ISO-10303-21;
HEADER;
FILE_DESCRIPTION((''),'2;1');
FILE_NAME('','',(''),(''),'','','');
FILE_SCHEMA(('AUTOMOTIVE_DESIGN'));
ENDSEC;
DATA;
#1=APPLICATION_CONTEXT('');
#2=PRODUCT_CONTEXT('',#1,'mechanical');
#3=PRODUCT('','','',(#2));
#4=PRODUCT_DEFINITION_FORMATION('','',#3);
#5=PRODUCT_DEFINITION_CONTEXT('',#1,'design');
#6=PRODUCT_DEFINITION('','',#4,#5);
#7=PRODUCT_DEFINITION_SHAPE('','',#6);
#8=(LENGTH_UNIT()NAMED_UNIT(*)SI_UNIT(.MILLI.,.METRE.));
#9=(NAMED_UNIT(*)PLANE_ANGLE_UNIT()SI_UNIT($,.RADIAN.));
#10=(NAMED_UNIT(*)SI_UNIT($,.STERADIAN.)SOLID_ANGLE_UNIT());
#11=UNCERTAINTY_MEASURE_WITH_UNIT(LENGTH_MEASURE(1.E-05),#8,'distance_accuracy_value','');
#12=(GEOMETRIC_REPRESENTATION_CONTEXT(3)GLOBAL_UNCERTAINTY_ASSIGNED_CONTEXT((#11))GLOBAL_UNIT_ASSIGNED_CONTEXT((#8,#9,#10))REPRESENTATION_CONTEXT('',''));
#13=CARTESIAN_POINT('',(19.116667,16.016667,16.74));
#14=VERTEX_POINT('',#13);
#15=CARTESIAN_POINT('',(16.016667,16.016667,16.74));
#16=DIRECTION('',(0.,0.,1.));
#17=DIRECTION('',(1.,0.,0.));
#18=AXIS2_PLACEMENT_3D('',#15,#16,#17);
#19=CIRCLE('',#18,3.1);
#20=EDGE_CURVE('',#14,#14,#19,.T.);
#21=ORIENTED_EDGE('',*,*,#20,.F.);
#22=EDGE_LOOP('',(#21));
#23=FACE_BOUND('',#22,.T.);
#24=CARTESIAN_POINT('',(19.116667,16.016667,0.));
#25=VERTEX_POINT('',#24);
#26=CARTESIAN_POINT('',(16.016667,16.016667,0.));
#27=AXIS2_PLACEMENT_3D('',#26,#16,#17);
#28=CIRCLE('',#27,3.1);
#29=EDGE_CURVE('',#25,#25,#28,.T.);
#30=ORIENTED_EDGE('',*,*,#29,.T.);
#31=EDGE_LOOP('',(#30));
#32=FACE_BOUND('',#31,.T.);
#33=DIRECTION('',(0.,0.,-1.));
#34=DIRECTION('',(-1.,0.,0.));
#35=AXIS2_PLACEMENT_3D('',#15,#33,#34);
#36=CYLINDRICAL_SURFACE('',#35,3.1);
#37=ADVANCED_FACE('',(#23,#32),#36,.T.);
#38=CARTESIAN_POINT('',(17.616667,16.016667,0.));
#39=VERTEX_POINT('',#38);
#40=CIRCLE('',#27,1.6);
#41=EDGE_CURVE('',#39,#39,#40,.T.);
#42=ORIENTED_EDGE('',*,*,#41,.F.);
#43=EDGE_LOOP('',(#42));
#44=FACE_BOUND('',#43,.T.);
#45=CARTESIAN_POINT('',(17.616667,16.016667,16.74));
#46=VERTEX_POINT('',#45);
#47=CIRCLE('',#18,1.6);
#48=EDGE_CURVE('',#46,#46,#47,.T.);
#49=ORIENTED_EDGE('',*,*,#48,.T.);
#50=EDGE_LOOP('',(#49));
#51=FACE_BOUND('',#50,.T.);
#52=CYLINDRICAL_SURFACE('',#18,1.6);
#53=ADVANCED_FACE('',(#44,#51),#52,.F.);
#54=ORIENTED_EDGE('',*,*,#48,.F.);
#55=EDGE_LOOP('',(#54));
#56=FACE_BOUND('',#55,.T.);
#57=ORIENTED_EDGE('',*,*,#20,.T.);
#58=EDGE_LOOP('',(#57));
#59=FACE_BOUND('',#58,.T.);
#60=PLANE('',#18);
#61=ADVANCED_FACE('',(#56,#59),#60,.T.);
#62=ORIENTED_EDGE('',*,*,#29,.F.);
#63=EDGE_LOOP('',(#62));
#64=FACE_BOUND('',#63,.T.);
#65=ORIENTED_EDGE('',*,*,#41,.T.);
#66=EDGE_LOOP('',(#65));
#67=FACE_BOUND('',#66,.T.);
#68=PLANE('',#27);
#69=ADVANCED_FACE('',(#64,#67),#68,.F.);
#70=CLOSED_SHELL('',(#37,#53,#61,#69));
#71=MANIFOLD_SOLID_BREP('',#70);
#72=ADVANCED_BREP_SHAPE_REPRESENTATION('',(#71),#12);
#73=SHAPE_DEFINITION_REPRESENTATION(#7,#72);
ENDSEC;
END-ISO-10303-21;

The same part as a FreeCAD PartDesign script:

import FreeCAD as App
import Part
import Sketcher
Q = App.Units.Quantity

doc = App.newDocument("Part")
body = doc.addObject("PartDesign::Body", "Body")

# Sketch on XY plane
sketch1 = body.newObject("Sketcher::SketchObject", "Sketch")
sketch1.AttachmentSupport = (doc.getObject("XY_Plane"), [""])
sketch1.MapMode = "FlatFace"
sketch1.addGeometry(Part.Circle(App.Vector(16, 16, 0), App.Vector(0, 0, 1), 3.1), False)
sketch1.addGeometry(Part.Circle(App.Vector(16, 16, 0), App.Vector(0, 0, 1), 1.6), False)
sketch1.addConstraint(Sketcher.Constraint("Coincident", 1, 3, 0, 3))
sketch1.addConstraint(Sketcher.Constraint("Diameter", 0, Q("6.2 mm")))
sketch1.addConstraint(Sketcher.Constraint("Diameter", 1, Q("3.1 mm")))
sketch1.addConstraint(Sketcher.Constraint("DistanceX", -1, 1, 0, 3, Q("16.016667 mm")))
sketch1.addConstraint(Sketcher.Constraint("DistanceY", -1, 1, 0, 3, Q("16.016667 mm")))
pad1 = body.newObject("PartDesign::Pad", "Pad")
pad1.Profile = sketch1
pad1.Length = 16.74

# Sketch on XY plane
sketch2 = body.newObject("Sketcher::SketchObject", "Sketch001")
sketch2.AttachmentSupport = (doc.getObject("XY_Plane"), [""])
sketch2.MapMode = "FlatFace"
sketch2.AttachmentOffset = App.Placement(App.Vector(0, 0, 16.74), App.Rotation())
sketch2.addGeometry(Part.Circle(App.Vector(16, 16, 0), App.Vector(0, 0, 1), 1.6), False)
sketch2.addConstraint(Sketcher.Constraint("Diameter", 0, Q("3.2 mm")))
sketch2.addConstraint(Sketcher.Constraint("DistanceX", -1, 1, 0, 3, Q("16.016667 mm")))
sketch2.addConstraint(Sketcher.Constraint("DistanceY", -1, 1, 0, 3, Q("16.016667 mm")))
doc.recompute()
hole = body.newObject("PartDesign::Hole", "Hole")
hole.Profile = sketch2
hole.ThreadType = "None"
hole.Diameter = 3.2
hole.DepthType = "ThroughAll"

doc.recompute()
